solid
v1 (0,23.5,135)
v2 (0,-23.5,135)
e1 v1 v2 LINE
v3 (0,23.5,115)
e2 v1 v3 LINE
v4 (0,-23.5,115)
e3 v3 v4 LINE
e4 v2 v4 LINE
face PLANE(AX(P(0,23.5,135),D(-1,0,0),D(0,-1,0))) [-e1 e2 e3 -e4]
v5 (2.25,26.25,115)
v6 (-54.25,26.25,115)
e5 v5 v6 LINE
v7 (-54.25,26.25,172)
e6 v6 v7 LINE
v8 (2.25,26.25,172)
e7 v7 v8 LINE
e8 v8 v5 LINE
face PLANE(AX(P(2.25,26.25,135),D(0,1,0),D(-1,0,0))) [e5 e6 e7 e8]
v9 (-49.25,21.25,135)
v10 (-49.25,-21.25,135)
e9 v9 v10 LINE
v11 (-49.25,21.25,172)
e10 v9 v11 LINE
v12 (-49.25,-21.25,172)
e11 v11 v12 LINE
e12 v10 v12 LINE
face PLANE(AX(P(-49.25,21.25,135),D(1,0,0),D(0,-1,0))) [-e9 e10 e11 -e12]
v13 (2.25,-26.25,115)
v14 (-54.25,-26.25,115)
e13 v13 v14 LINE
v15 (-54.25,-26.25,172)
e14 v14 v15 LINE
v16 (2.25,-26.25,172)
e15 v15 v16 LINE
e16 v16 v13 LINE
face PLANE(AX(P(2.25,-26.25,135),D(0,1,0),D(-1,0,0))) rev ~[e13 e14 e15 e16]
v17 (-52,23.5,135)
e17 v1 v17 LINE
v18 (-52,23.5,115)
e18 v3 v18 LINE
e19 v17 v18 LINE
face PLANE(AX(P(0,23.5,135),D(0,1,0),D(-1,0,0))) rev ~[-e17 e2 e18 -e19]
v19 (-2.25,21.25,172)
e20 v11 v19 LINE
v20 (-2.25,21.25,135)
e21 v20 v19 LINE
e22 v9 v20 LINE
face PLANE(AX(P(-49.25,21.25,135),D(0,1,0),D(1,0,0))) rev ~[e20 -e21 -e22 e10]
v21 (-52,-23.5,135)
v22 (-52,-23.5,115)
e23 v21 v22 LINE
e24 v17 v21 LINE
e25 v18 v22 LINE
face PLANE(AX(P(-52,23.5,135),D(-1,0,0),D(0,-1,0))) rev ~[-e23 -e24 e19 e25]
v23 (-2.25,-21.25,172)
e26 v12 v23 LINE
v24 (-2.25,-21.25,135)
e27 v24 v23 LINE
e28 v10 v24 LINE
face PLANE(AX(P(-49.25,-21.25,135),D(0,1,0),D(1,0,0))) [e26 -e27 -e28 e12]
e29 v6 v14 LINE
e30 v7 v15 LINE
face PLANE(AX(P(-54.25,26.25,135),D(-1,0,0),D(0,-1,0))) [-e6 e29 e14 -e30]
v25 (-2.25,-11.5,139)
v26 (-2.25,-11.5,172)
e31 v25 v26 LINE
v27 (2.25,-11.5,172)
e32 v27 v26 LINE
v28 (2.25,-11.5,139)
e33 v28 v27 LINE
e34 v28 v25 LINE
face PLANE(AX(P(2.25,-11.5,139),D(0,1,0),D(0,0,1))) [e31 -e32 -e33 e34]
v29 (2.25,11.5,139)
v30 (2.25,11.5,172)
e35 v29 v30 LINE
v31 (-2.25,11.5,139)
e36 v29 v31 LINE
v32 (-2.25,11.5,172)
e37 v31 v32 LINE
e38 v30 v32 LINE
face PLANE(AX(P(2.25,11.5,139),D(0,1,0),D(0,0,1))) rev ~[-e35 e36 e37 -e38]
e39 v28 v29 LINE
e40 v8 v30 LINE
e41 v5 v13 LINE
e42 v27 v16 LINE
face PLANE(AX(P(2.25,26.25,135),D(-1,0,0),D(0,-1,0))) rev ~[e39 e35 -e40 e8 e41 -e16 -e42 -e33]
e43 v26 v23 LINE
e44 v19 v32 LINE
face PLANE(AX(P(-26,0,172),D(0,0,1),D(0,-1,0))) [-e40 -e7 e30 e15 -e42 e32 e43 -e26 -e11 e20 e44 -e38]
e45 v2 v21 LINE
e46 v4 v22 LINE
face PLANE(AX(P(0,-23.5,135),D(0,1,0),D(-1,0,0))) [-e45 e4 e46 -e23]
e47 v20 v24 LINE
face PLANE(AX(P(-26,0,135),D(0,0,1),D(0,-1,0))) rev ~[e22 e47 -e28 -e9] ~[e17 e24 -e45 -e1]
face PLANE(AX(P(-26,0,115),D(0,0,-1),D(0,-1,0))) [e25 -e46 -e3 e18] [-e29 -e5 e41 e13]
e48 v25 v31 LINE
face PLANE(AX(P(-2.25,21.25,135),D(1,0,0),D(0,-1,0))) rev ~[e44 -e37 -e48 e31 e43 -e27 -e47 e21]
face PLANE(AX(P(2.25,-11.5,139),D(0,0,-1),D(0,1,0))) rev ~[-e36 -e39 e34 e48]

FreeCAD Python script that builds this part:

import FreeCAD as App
import Part
import Sketcher
Q = App.Units.Quantity

doc = App.newDocument("Part")
body = doc.addObject("PartDesign::Body", "Body")

# Sketch on XY plane
sketch1 = doc.addObject("Sketcher::SketchObject", "Sketch")
body.addObject(sketch1)
sketch1.AttachmentSupport = (doc.XY_Plane, [""])
sketch1.MapMode = "FlatFace"
sketch1.addGeometry([
    Part.LineSegment(App.Vector(-26, 2, 0), App.Vector(-26, -54, 0)),  # 0
    Part.LineSegment(App.Vector(-26, -54, 0), App.Vector(26, -54, 0)),  # 1
    Part.LineSegment(App.Vector(26, -54, 0), App.Vector(26, 2, 0)),  # 2
    Part.LineSegment(App.Vector(26, 2, 0), App.Vector(-26, 2, 0)),  # 3
    Part.LineSegment(App.Vector(21, -49, 0), App.Vector(-21, -49, 0)),  # 4
    Part.LineSegment(App.Vector(-21, -49, 0), App.Vector(-21, -2, 0)),  # 5
    Part.LineSegment(App.Vector(-21, -2, 0), App.Vector(21, -2, 0)),  # 6
    Part.LineSegment(App.Vector(21, -2, 0), App.Vector(21, -49, 0)),  # 7
], False)
sketch1.addConstraint([
    Sketcher.Constraint("Coincident", 0, 2, 1, 1),
    Sketcher.Constraint("Coincident", 1, 2, 2, 1),
    Sketcher.Constraint("Coincident", 2, 2, 3, 1),
    Sketcher.Constraint("Coincident", 3, 2, 0, 1),
    Sketcher.Constraint("Coincident", 4, 2, 5, 1),
    Sketcher.Constraint("Coincident", 5, 2, 6, 1),
    Sketcher.Constraint("Coincident", 6, 2, 7, 1),
    Sketcher.Constraint("Coincident", 7, 2, 4, 1),
    Sketcher.Constraint("Vertical", 0),
    Sketcher.Constraint("Horizontal", 1),
    Sketcher.Constraint("Vertical", 2),
    Sketcher.Constraint("Horizontal", 3),
    Sketcher.Constraint("Horizontal", 4),
    Sketcher.Constraint("Vertical", 5),
    Sketcher.Constraint("Horizontal", 6),
    Sketcher.Constraint("Vertical", 7),
    Sketcher.Constraint("DistanceY", 5, 1, 5, 2, Q("47 mm")),
    Sketcher.Constraint("DistanceX", 1, 1, 1, 2, Q("52.5 mm")),
    Sketcher.Constraint("DistanceX", 4, 2, 4, 1, Q("42.5 mm")),
    Sketcher.Constraint("DistanceY", 0, 2, 0, 1, Q("56.5 mm")),
    Sketcher.Constraint("DistanceX", 0, 2, 4, 2, Q("5 mm")),
    Sketcher.Constraint("DistanceY", 0, 2, 4, 2, Q("5 mm")),
    Sketcher.Constraint("DistanceX", 0, 2, -1, 1, Q("26.25 mm")),
    Sketcher.Constraint("DistanceY", 0, 2, -1, 1, Q("54.25 mm")),
])
pad1 = doc.addObject("PartDesign::Pad", "Pad")
body.addObject(pad1)
pad1.Profile = sketch1
pad1.Length = 37

# Sketch on XZ plane
sketch2 = doc.addObject("Sketcher::SketchObject", "Sketch001")
body.addObject(sketch2)
sketch2.AttachmentSupport = (doc.XZ_Plane, [""])
sketch2.MapMode = "FlatFace"
sketch2.AttachmentOffset = App.Placement(App.Vector(0, 0, -2.25), App.Rotation())
sketch2.addGeometry([
    Part.LineSegment(App.Vector(12, 37, 0), App.Vector(12, 4, 0)),
    Part.LineSegment(App.Vector(12, 4, 0), App.Vector(-12, 4, 0)),
    Part.LineSegment(App.Vector(-12, 4, 0), App.Vector(-12, 37, 0)),
    Part.LineSegment(App.Vector(-12, 37, 0), App.Vector(12, 37, 0)),
], False)
sketch2.addConstraint([
    Sketcher.Constraint("Coincident", 0, 2, 1, 1),
    Sketcher.Constraint("Coincident", 1, 2, 2, 1),
    Sketcher.Constraint("Coincident", 2, 2, 3, 1),
    Sketcher.Constraint("Coincident", 3, 2, 0, 1),
    Sketcher.Constraint("Vertical", 0),
    Sketcher.Constraint("Horizontal", 1),
    Sketcher.Constraint("Vertical", 2),
    Sketcher.Constraint("Horizontal", 3),
    Sketcher.Constraint("DistanceX", 1, 2, 1, 1, Q("23 mm")),
    Sketcher.Constraint("DistanceY", 0, 2, 0, 1, Q("33 mm")),
    Sketcher.Constraint("DistanceY", -1, 1, 0, 2, Q("4 mm")),
    Sketcher.Constraint("DistanceX", -1, 1, 0, 2, Q("11.5 mm")),
])
pocket1 = doc.addObject("PartDesign::Pocket", "Pocket")
body.addObject(pocket1)
pocket1.Profile = sketch2
pocket1.Length = 5
pocket1.Reversed = True

# Sketch on XY plane
sketch3 = doc.addObject("Sketcher::SketchObject", "Sketch002")
body.addObject(sketch3)
sketch3.AttachmentSupport = (doc.XY_Plane, [""])
sketch3.MapMode = "FlatFace"
sketch3.addGeometry([
    Part.LineSegment(App.Vector(-26, -54, 0), App.Vector(-26, 2, 0)),  # 0
    Part.LineSegment(App.Vector(-26, 2, 0), App.Vector(26, 2, 0)),  # 1
    Part.LineSegment(App.Vector(26, 2, 0), App.Vector(26, -54, 0)),  # 2
    Part.LineSegment(App.Vector(26, -54, 0), App.Vector(-26, -54, 0)),  # 3
    Part.LineSegment(App.Vector(24, 0, 0), App.Vector(-24, 0, 0)),  # 4
    Part.LineSegment(App.Vector(-24, 0, 0), App.Vector(-24, -52, 0)),  # 5
    Part.LineSegment(App.Vector(-24, -52, 0), App.Vector(24, -52, 0)),  # 6
    Part.LineSegment(App.Vector(24, -52, 0), App.Vector(24, 0, 0)),  # 7
], False)
sketch3.addConstraint([
    Sketcher.Constraint("Coincident", 0, 2, 1, 1),
    Sketcher.Constraint("Coincident", 1, 2, 2, 1),
    Sketcher.Constraint("Coincident", 2, 2, 3, 1),
    Sketcher.Constraint("Coincident", 3, 2, 0, 1),
    Sketcher.Constraint("Coincident", 4, 2, 5, 1),
    Sketcher.Constraint("Coincident", 5, 2, 6, 1),
    Sketcher.Constraint("Coincident", 6, 2, 7, 1),
    Sketcher.Constraint("Coincident", 7, 2, 4, 1),
    Sketcher.Constraint("Vertical", 0),
    Sketcher.Constraint("Horizontal", 1),
    Sketcher.Constraint("Vertical", 2),
    Sketcher.Constraint("Horizontal", 3),
    Sketcher.Constraint("Horizontal", 4),
    Sketcher.Constraint("Vertical", 5),
    Sketcher.Constraint("Horizontal", 6),
    Sketcher.Constraint("Vertical", 7),
    Sketcher.Constraint("Symmetric", 4, 2, 7, 2, -1, 1),
    Sketcher.Constraint("DistanceX", 4, 2, 4, 1, Q("47 mm")),
    Sketcher.Constraint("DistanceY", 5, 2, 5, 1, Q("52 mm")),
    Sketcher.Constraint("DistanceX", 1, 1, 1, 2, Q("52.5 mm")),
    Sketcher.Constraint("DistanceY", 0, 1, 0, 2, Q("56.5 mm")),
    Sketcher.Constraint("DistanceX", 0, 2, -1, 1, Q("26.25 mm")),
    Sketcher.Constraint("DistanceY", -1, 1, 0, 2, Q("2.25 mm")),
])
pad2 = doc.addObject("PartDesign::Pad", "Pad001")
body.addObject(pad2)
pad2.Profile = sketch3
pad2.Length = 20
pad2.Reversed = True
body2 = doc.addObject("PartDesign::Body", "Body001")
doc.recompute()

body.Placement = App.Placement(App.Vector(0, 0, 135), App.Rotation(App.Vector(0, 0, 1), 270))
boolean = doc.addObject("PartDesign::Boolean", "Boolean")
body2.addObject(boolean)
boolean.Type = "Fuse"
boolean.addObjects([body])

doc.recompute()
